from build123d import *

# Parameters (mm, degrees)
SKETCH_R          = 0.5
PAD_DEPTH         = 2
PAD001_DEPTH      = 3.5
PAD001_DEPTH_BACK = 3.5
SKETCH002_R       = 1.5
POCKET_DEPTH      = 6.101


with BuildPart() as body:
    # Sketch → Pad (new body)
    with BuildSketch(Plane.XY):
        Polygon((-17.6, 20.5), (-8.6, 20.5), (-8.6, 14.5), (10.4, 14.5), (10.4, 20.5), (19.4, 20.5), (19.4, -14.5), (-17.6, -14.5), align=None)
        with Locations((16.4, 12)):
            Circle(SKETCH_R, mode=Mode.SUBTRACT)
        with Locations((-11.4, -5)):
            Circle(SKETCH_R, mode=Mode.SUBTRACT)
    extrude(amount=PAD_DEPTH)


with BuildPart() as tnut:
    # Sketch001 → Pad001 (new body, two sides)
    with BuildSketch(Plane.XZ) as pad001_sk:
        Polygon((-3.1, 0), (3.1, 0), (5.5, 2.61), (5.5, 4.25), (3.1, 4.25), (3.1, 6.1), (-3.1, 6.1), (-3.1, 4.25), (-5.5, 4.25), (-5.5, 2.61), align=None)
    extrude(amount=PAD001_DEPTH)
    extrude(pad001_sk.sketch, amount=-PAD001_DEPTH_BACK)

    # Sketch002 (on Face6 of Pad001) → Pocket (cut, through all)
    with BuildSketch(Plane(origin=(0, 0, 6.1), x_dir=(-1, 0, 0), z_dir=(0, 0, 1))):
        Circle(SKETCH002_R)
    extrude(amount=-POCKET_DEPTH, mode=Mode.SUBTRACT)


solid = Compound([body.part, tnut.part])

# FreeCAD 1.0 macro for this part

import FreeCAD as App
import Part
import Sketcher
from FreeCAD import Vector
Q = App.Units.Quantity


def add_polygon(sketch, points):
    """Adds a closed chain of lines whose ends are joined by coincident constraints."""
    first, n = sketch.GeometryCount, len(points)
    for a, b in zip(points, points[1:] + points[:1]):
        sketch.addGeometry(Part.LineSegment(App.Vector(*a, 0), App.Vector(*b, 0)), False)
    for i in range(n):
        sketch.addConstraint(Sketcher.Constraint("Coincident", first + i, 2, first + (i + 1) % n, 1))

doc = App.newDocument("Part")
body = doc.addObject("PartDesign::Body", "Body")

# Sketch on XY plane
sketch1 = body.newObject("Sketcher::SketchObject", "Sketch")
sketch1.AttachmentSupport = (doc.getObject("XY_Plane"), [""])
sketch1.MapMode = "FlatFace"
add_polygon(sketch1, [(-8.6, 20.5), (-17.6, 20.5), (-17.6, -14.5), (19.4, -14.5), (19.4, 20.5), (10.4, 20.5), (10.4, 14.5), (-8.6, 14.5)])  # lines 0-7
sketch1.addGeometry(Part.Circle(Vector(-11.4, -5, 0), Vector(0, 0, 1), 0.5), False)  # 8
sketch1.addGeometry(Part.Circle(Vector(16.4, 12, 0), Vector(0, 0, 1), 0.5), False)  # 9
sketch1.addConstraint(Sketcher.Constraint("Horizontal", 0))
sketch1.addConstraint(Sketcher.Constraint("Vertical", 1))
sketch1.addConstraint(Sketcher.Constraint("Horizontal", 2))
sketch1.addConstraint(Sketcher.Constraint("Vertical", 3))
sketch1.addConstraint(Sketcher.Constraint("Horizontal", 4))
sketch1.addConstraint(Sketcher.Constraint("Vertical", 5))
sketch1.addConstraint(Sketcher.Constraint("Horizontal", 6))
sketch1.addConstraint(Sketcher.Constraint("Vertical", 7))
sketch1.addConstraint(Sketcher.Constraint("Equal", 8, 9))
sketch1.addConstraint(Sketcher.Constraint("Horizontal", 0, 2, 3, 2))
sketch1.addConstraint(Sketcher.Constraint("Equal", 0, 4))
sketch1.addConstraint(Sketcher.Constraint("Diameter", 8, Q("1 mm")))
sketch1.addConstraint(Sketcher.Constraint("DistanceX", 0, 2, 0, 1, Q("9 mm")))
sketch1.addConstraint(Sketcher.Constraint("DistanceX", 2, 1, 2, 2, Q("37 mm")))
sketch1.addConstraint(Sketcher.Constraint("DistanceY", 1, 2, 1, 1, Q("35 mm")))
sketch1.addConstraint(Sketcher.Constraint("DistanceY", 5, 2, 5, 1, Q("6 mm")))
sketch1.addConstraint(Sketcher.Constraint("DistanceY", 8, 3, -1, 1, Q("5 mm")))
sketch1.addConstraint(Sketcher.Constraint("DistanceY", -1, 1, 9, 3, Q("12 mm")))
sketch1.addConstraint(Sketcher.Constraint("DistanceX", 0, 2, 9, 3, Q("34 mm")))
sketch1.addConstraint(Sketcher.Constraint("DistanceX", 8, 3, -1, 1, Q("11.4 mm")))
sketch1.addConstraint(Sketcher.Constraint("DistanceX", -1, 1, 9, 3, Q("16.4 mm")))
sketch1.addConstraint(Sketcher.Constraint("DistanceY", -1, 1, 0, 2, Q("20.5 mm")))
pad1 = body.newObject("PartDesign::Pad", "Pad")
pad1.Profile = sketch1
pad1.Length = 2
body2 = doc.addObject("PartDesign::Body", "Body001")

# Sketch on XZ plane
sketch2 = body2.newObject("Sketcher::SketchObject", "Sketch001")
sketch2.AttachmentSupport = (doc.getObject("XZ_Plane001"), [""])
sketch2.MapMode = "FlatFace"
add_polygon(sketch2, [(-3.1, 0), (3.1, 0), (5.5, 2.61), (5.5, 4.25), (3.1, 4.25), (3.1, 6.1), (-3.1, 6.1), (-3.1, 4.25), (-5.5, 4.25), (-5.5, 2.61)])  # lines 0-9
sketch2.addConstraint(Sketcher.Constraint("Horizontal", 0))
sketch2.addConstraint(Sketcher.Constraint("Vertical", 2))
sketch2.addConstraint(Sketcher.Constraint("Horizontal", 3))
sketch2.addConstraint(Sketcher.Constraint("Vertical", 4))
sketch2.addConstraint(Sketcher.Constraint("Horizontal", 5))
sketch2.addConstraint(Sketcher.Constraint("Vertical", 6))
sketch2.addConstraint(Sketcher.Constraint("Horizontal", 7))
sketch2.addConstraint(Sketcher.Constraint("Vertical", 8))
sketch2.addConstraint(Sketcher.Constraint("Symmetric", 0, 2, 9, 2, -1, 1))
sketch2.addConstraint(Sketcher.Constraint("Symmetric", 3, 2, 6, 2, -2))
sketch2.addConstraint(Sketcher.Constraint("Symmetric", 1, 2, 8, 2, -2))
sketch2.addConstraint(Sketcher.Constraint("Vertical", 0, 2, 3, 2))
sketch2.addConstraint(Sketcher.Constraint("DistanceX", 0, 1, 0, 2, Q("6.2 mm")))
sketch2.addConstraint(Sketcher.Constraint("DistanceX", 3, 2, 3, 1, Q("2.4 mm")))
sketch2.addConstraint(Sketcher.Constraint("DistanceY", 2, 1, 2, 2, Q("1.64 mm")))
sketch2.addConstraint(Sketcher.Constraint("DistanceY", 4, 1, 4, 2, Q("1.85 mm")))
sketch2.addConstraint(Sketcher.Constraint("DistanceY", -1, 1, 4, 2, Q("6.1 mm")))
pad2 = body2.newObject("PartDesign::Pad", "Pad001")
pad2.Profile = sketch2
pad2.Type = "TwoLengths"
pad2.Length = 3.5
pad2.Length2 = 3.5

# Sketch on XY plane
sketch3 = body2.newObject("Sketcher::SketchObject", "Sketch002")
sketch3.AttachmentSupport = (doc.getObject("XY_Plane001"), [""])
sketch3.MapMode = "FlatFace"
sketch3.AttachmentOffset = App.Placement(Vector(0, 0, 6.1), App.Rotation())
sketch3.addGeometry(Part.Circle(Vector(0, 0, 0), Vector(0, 0, 1), 1.5), False)
sketch3.addConstraint(Sketcher.Constraint("Coincident", 0, 3, -1, 1))
sketch3.addConstraint(Sketcher.Constraint("Diameter", 0, Q("3 mm")))
pocket1 = body2.newObject("PartDesign::Pocket", "Pocket")
pocket1.Profile = sketch3
pocket1.Type = "ThroughAll"

doc.recompute()
